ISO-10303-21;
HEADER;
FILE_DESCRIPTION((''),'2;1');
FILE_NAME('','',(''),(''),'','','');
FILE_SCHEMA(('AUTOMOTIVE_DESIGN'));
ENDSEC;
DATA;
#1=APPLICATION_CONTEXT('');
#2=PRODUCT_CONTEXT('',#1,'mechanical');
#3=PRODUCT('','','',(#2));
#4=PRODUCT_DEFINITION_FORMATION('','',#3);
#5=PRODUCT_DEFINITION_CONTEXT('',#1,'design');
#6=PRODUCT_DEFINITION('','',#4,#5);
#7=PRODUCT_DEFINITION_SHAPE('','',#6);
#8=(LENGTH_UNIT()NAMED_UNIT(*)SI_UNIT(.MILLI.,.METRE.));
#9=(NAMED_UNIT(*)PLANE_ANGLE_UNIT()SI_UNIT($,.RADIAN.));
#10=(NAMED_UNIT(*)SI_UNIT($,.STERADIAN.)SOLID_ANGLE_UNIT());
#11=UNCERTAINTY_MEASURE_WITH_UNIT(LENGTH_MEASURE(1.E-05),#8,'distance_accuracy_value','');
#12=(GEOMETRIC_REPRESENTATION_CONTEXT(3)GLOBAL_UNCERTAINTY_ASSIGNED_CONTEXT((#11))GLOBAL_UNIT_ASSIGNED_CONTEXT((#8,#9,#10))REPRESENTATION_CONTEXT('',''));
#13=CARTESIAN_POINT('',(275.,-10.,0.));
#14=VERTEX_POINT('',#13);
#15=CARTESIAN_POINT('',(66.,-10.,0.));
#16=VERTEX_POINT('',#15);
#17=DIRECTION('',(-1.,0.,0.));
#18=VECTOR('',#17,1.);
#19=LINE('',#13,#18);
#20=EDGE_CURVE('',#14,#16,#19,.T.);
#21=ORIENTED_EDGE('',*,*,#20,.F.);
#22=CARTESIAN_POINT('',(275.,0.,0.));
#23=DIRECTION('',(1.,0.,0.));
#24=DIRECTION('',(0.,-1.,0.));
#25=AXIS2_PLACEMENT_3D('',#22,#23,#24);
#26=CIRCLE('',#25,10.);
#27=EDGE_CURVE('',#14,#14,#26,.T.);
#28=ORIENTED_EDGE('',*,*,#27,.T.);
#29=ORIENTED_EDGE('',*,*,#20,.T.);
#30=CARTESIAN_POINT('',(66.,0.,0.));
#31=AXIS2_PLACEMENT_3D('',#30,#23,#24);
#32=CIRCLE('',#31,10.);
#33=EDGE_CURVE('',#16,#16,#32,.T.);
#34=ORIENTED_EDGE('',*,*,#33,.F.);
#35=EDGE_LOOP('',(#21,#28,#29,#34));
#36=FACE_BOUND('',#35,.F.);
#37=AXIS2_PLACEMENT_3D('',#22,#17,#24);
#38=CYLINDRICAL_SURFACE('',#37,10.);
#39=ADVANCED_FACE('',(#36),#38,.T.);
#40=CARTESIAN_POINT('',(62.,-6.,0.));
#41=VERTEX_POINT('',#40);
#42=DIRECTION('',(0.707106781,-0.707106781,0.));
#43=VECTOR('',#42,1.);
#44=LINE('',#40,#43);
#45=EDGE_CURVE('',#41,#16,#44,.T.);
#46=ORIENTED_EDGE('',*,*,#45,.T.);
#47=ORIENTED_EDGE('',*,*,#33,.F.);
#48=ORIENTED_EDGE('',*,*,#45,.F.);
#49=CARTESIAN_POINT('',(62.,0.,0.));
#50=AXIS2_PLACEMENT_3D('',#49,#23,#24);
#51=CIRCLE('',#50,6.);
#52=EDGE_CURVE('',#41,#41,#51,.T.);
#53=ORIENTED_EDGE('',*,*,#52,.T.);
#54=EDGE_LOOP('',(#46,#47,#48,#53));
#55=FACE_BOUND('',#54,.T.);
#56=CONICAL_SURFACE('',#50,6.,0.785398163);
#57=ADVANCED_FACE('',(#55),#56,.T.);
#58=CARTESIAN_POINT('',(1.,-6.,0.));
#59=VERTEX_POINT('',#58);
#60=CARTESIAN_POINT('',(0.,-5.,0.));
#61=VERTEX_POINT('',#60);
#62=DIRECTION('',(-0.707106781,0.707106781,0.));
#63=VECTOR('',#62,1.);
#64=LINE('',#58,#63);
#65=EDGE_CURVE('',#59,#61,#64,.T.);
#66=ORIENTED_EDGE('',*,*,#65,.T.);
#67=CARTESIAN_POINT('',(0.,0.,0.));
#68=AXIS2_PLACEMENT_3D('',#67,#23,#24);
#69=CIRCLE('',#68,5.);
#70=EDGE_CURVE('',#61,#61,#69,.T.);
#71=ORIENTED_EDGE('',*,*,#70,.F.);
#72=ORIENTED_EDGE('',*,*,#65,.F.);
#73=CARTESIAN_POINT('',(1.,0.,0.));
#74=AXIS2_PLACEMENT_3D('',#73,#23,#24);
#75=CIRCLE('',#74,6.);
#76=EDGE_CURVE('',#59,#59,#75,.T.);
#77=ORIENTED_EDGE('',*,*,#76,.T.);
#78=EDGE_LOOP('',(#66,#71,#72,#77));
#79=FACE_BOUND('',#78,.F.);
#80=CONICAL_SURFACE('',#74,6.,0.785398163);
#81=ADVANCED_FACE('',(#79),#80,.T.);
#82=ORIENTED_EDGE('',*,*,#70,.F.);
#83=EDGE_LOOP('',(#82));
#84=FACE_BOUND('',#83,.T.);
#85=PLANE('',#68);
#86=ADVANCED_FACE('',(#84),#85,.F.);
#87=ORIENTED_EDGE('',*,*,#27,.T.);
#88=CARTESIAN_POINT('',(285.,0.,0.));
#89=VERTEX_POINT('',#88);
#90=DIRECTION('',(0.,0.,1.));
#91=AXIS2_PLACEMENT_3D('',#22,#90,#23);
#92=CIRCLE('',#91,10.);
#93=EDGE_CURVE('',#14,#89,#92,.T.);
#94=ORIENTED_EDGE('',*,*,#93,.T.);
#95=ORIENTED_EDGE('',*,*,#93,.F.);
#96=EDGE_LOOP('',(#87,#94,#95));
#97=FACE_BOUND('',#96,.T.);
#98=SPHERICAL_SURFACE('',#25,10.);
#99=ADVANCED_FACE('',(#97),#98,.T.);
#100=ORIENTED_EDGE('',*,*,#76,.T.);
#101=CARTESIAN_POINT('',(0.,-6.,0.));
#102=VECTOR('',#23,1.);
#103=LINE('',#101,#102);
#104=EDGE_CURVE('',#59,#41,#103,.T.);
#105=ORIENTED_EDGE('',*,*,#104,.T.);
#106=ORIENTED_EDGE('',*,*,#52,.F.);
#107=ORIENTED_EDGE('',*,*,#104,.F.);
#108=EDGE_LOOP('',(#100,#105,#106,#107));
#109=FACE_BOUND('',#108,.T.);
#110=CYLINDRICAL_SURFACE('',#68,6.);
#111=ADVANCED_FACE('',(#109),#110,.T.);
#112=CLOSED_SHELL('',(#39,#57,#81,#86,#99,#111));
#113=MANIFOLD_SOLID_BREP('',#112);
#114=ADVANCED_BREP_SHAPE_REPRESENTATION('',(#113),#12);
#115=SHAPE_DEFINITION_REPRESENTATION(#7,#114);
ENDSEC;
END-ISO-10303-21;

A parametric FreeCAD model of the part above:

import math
import FreeCAD as App
import Part
import Sketcher

V = App.Vector
Q = App.Units.Quantity


def edges_at(feature, points):
    """Names of the edges that pass closest to the given points."""
    edges = feature.Shape.Edges
    near = lambda p: min(range(len(edges)), key=lambda i: edges[i].distToShape(Part.Vertex(*p))[0])
    return sorted({f"Edge{near(p) + 1}" for p in points})

doc = App.newDocument("Part")
body = doc.addObject("PartDesign::Body", "Body")

# Sketch on XY plane
sketch1 = doc.addObject("Sketcher::SketchObject", "Sketch")
body.addObject(sketch1)
sketch1.AttachmentSupport = (doc.XY_Plane, [""])
sketch1.MapMode = "FlatFace"
sketch1.addGeometry([
    Part.LineSegment(V(66, -10, 0), V(275, -10, 0)),  # 0
    Part.ArcOfCircle(Part.Circle(V(275, 0, 0), V(0, 0, 1), 10), math.radians(-90), math.radians(0)),  # 1
    Part.LineSegment(V(285, 0, 0), V(0, 0, 0)),  # 2
    Part.LineSegment(V(0, 0, 0), V(0, -6, 0)),  # 3
    Part.LineSegment(V(0, -6, 0), V(62, -6, 0)),  # 4
    Part.LineSegment(V(62, -6, 0), V(66, -10, 0)),  # 5
], False)
sketch1.addConstraint([
    Sketcher.Constraint("Tangent", 0, 2, 1, 1),
    Sketcher.Constraint("Coincident", 1, 2, 2, 1),
    Sketcher.Constraint("Coincident", 2, 2, 3, 1),
    Sketcher.Constraint("Coincident", 3, 2, 4, 1),
    Sketcher.Constraint("Coincident", 4, 2, 5, 1),
    Sketcher.Constraint("Coincident", 5, 2, 0, 1),
    Sketcher.Constraint("Horizontal", 0),
    Sketcher.Constraint("Horizontal", 2),
    Sketcher.Constraint("Vertical", 3),
    Sketcher.Constraint("Horizontal", 4),
    Sketcher.Constraint("Coincident", 2, 2, -1, 1),
    Sketcher.Constraint("PointOnObject", 1, 3, -1),
    Sketcher.Constraint("Radius", 1, Q("10 mm")),
    Sketcher.Constraint("DistanceX", 0, 1, 0, 2, Q("209 mm")),
    Sketcher.Constraint("DistanceX", 2, 2, 2, 1, Q("285 mm")),
    Sketcher.Constraint("DistanceX", 4, 1, 4, 2, Q("62 mm")),
    Sketcher.Constraint("DistanceY", 3, 2, 3, 1, Q("6 mm")),
])
revolution = doc.addObject("PartDesign::Revolution", "Revolution")
body.addObject(revolution)
revolution.Profile = sketch1
revolution.ReferenceAxis = (sketch1, ["H_Axis"])
revolution.Angle = 360
doc.recompute()

chamfer = doc.addObject("PartDesign::Chamfer", "Chamfer")
body.addObject(chamfer)
chamfer.Base = (revolution, edges_at(revolution, [(0, 0, 6)]))
chamfer.Size = 1

doc.recompute()
